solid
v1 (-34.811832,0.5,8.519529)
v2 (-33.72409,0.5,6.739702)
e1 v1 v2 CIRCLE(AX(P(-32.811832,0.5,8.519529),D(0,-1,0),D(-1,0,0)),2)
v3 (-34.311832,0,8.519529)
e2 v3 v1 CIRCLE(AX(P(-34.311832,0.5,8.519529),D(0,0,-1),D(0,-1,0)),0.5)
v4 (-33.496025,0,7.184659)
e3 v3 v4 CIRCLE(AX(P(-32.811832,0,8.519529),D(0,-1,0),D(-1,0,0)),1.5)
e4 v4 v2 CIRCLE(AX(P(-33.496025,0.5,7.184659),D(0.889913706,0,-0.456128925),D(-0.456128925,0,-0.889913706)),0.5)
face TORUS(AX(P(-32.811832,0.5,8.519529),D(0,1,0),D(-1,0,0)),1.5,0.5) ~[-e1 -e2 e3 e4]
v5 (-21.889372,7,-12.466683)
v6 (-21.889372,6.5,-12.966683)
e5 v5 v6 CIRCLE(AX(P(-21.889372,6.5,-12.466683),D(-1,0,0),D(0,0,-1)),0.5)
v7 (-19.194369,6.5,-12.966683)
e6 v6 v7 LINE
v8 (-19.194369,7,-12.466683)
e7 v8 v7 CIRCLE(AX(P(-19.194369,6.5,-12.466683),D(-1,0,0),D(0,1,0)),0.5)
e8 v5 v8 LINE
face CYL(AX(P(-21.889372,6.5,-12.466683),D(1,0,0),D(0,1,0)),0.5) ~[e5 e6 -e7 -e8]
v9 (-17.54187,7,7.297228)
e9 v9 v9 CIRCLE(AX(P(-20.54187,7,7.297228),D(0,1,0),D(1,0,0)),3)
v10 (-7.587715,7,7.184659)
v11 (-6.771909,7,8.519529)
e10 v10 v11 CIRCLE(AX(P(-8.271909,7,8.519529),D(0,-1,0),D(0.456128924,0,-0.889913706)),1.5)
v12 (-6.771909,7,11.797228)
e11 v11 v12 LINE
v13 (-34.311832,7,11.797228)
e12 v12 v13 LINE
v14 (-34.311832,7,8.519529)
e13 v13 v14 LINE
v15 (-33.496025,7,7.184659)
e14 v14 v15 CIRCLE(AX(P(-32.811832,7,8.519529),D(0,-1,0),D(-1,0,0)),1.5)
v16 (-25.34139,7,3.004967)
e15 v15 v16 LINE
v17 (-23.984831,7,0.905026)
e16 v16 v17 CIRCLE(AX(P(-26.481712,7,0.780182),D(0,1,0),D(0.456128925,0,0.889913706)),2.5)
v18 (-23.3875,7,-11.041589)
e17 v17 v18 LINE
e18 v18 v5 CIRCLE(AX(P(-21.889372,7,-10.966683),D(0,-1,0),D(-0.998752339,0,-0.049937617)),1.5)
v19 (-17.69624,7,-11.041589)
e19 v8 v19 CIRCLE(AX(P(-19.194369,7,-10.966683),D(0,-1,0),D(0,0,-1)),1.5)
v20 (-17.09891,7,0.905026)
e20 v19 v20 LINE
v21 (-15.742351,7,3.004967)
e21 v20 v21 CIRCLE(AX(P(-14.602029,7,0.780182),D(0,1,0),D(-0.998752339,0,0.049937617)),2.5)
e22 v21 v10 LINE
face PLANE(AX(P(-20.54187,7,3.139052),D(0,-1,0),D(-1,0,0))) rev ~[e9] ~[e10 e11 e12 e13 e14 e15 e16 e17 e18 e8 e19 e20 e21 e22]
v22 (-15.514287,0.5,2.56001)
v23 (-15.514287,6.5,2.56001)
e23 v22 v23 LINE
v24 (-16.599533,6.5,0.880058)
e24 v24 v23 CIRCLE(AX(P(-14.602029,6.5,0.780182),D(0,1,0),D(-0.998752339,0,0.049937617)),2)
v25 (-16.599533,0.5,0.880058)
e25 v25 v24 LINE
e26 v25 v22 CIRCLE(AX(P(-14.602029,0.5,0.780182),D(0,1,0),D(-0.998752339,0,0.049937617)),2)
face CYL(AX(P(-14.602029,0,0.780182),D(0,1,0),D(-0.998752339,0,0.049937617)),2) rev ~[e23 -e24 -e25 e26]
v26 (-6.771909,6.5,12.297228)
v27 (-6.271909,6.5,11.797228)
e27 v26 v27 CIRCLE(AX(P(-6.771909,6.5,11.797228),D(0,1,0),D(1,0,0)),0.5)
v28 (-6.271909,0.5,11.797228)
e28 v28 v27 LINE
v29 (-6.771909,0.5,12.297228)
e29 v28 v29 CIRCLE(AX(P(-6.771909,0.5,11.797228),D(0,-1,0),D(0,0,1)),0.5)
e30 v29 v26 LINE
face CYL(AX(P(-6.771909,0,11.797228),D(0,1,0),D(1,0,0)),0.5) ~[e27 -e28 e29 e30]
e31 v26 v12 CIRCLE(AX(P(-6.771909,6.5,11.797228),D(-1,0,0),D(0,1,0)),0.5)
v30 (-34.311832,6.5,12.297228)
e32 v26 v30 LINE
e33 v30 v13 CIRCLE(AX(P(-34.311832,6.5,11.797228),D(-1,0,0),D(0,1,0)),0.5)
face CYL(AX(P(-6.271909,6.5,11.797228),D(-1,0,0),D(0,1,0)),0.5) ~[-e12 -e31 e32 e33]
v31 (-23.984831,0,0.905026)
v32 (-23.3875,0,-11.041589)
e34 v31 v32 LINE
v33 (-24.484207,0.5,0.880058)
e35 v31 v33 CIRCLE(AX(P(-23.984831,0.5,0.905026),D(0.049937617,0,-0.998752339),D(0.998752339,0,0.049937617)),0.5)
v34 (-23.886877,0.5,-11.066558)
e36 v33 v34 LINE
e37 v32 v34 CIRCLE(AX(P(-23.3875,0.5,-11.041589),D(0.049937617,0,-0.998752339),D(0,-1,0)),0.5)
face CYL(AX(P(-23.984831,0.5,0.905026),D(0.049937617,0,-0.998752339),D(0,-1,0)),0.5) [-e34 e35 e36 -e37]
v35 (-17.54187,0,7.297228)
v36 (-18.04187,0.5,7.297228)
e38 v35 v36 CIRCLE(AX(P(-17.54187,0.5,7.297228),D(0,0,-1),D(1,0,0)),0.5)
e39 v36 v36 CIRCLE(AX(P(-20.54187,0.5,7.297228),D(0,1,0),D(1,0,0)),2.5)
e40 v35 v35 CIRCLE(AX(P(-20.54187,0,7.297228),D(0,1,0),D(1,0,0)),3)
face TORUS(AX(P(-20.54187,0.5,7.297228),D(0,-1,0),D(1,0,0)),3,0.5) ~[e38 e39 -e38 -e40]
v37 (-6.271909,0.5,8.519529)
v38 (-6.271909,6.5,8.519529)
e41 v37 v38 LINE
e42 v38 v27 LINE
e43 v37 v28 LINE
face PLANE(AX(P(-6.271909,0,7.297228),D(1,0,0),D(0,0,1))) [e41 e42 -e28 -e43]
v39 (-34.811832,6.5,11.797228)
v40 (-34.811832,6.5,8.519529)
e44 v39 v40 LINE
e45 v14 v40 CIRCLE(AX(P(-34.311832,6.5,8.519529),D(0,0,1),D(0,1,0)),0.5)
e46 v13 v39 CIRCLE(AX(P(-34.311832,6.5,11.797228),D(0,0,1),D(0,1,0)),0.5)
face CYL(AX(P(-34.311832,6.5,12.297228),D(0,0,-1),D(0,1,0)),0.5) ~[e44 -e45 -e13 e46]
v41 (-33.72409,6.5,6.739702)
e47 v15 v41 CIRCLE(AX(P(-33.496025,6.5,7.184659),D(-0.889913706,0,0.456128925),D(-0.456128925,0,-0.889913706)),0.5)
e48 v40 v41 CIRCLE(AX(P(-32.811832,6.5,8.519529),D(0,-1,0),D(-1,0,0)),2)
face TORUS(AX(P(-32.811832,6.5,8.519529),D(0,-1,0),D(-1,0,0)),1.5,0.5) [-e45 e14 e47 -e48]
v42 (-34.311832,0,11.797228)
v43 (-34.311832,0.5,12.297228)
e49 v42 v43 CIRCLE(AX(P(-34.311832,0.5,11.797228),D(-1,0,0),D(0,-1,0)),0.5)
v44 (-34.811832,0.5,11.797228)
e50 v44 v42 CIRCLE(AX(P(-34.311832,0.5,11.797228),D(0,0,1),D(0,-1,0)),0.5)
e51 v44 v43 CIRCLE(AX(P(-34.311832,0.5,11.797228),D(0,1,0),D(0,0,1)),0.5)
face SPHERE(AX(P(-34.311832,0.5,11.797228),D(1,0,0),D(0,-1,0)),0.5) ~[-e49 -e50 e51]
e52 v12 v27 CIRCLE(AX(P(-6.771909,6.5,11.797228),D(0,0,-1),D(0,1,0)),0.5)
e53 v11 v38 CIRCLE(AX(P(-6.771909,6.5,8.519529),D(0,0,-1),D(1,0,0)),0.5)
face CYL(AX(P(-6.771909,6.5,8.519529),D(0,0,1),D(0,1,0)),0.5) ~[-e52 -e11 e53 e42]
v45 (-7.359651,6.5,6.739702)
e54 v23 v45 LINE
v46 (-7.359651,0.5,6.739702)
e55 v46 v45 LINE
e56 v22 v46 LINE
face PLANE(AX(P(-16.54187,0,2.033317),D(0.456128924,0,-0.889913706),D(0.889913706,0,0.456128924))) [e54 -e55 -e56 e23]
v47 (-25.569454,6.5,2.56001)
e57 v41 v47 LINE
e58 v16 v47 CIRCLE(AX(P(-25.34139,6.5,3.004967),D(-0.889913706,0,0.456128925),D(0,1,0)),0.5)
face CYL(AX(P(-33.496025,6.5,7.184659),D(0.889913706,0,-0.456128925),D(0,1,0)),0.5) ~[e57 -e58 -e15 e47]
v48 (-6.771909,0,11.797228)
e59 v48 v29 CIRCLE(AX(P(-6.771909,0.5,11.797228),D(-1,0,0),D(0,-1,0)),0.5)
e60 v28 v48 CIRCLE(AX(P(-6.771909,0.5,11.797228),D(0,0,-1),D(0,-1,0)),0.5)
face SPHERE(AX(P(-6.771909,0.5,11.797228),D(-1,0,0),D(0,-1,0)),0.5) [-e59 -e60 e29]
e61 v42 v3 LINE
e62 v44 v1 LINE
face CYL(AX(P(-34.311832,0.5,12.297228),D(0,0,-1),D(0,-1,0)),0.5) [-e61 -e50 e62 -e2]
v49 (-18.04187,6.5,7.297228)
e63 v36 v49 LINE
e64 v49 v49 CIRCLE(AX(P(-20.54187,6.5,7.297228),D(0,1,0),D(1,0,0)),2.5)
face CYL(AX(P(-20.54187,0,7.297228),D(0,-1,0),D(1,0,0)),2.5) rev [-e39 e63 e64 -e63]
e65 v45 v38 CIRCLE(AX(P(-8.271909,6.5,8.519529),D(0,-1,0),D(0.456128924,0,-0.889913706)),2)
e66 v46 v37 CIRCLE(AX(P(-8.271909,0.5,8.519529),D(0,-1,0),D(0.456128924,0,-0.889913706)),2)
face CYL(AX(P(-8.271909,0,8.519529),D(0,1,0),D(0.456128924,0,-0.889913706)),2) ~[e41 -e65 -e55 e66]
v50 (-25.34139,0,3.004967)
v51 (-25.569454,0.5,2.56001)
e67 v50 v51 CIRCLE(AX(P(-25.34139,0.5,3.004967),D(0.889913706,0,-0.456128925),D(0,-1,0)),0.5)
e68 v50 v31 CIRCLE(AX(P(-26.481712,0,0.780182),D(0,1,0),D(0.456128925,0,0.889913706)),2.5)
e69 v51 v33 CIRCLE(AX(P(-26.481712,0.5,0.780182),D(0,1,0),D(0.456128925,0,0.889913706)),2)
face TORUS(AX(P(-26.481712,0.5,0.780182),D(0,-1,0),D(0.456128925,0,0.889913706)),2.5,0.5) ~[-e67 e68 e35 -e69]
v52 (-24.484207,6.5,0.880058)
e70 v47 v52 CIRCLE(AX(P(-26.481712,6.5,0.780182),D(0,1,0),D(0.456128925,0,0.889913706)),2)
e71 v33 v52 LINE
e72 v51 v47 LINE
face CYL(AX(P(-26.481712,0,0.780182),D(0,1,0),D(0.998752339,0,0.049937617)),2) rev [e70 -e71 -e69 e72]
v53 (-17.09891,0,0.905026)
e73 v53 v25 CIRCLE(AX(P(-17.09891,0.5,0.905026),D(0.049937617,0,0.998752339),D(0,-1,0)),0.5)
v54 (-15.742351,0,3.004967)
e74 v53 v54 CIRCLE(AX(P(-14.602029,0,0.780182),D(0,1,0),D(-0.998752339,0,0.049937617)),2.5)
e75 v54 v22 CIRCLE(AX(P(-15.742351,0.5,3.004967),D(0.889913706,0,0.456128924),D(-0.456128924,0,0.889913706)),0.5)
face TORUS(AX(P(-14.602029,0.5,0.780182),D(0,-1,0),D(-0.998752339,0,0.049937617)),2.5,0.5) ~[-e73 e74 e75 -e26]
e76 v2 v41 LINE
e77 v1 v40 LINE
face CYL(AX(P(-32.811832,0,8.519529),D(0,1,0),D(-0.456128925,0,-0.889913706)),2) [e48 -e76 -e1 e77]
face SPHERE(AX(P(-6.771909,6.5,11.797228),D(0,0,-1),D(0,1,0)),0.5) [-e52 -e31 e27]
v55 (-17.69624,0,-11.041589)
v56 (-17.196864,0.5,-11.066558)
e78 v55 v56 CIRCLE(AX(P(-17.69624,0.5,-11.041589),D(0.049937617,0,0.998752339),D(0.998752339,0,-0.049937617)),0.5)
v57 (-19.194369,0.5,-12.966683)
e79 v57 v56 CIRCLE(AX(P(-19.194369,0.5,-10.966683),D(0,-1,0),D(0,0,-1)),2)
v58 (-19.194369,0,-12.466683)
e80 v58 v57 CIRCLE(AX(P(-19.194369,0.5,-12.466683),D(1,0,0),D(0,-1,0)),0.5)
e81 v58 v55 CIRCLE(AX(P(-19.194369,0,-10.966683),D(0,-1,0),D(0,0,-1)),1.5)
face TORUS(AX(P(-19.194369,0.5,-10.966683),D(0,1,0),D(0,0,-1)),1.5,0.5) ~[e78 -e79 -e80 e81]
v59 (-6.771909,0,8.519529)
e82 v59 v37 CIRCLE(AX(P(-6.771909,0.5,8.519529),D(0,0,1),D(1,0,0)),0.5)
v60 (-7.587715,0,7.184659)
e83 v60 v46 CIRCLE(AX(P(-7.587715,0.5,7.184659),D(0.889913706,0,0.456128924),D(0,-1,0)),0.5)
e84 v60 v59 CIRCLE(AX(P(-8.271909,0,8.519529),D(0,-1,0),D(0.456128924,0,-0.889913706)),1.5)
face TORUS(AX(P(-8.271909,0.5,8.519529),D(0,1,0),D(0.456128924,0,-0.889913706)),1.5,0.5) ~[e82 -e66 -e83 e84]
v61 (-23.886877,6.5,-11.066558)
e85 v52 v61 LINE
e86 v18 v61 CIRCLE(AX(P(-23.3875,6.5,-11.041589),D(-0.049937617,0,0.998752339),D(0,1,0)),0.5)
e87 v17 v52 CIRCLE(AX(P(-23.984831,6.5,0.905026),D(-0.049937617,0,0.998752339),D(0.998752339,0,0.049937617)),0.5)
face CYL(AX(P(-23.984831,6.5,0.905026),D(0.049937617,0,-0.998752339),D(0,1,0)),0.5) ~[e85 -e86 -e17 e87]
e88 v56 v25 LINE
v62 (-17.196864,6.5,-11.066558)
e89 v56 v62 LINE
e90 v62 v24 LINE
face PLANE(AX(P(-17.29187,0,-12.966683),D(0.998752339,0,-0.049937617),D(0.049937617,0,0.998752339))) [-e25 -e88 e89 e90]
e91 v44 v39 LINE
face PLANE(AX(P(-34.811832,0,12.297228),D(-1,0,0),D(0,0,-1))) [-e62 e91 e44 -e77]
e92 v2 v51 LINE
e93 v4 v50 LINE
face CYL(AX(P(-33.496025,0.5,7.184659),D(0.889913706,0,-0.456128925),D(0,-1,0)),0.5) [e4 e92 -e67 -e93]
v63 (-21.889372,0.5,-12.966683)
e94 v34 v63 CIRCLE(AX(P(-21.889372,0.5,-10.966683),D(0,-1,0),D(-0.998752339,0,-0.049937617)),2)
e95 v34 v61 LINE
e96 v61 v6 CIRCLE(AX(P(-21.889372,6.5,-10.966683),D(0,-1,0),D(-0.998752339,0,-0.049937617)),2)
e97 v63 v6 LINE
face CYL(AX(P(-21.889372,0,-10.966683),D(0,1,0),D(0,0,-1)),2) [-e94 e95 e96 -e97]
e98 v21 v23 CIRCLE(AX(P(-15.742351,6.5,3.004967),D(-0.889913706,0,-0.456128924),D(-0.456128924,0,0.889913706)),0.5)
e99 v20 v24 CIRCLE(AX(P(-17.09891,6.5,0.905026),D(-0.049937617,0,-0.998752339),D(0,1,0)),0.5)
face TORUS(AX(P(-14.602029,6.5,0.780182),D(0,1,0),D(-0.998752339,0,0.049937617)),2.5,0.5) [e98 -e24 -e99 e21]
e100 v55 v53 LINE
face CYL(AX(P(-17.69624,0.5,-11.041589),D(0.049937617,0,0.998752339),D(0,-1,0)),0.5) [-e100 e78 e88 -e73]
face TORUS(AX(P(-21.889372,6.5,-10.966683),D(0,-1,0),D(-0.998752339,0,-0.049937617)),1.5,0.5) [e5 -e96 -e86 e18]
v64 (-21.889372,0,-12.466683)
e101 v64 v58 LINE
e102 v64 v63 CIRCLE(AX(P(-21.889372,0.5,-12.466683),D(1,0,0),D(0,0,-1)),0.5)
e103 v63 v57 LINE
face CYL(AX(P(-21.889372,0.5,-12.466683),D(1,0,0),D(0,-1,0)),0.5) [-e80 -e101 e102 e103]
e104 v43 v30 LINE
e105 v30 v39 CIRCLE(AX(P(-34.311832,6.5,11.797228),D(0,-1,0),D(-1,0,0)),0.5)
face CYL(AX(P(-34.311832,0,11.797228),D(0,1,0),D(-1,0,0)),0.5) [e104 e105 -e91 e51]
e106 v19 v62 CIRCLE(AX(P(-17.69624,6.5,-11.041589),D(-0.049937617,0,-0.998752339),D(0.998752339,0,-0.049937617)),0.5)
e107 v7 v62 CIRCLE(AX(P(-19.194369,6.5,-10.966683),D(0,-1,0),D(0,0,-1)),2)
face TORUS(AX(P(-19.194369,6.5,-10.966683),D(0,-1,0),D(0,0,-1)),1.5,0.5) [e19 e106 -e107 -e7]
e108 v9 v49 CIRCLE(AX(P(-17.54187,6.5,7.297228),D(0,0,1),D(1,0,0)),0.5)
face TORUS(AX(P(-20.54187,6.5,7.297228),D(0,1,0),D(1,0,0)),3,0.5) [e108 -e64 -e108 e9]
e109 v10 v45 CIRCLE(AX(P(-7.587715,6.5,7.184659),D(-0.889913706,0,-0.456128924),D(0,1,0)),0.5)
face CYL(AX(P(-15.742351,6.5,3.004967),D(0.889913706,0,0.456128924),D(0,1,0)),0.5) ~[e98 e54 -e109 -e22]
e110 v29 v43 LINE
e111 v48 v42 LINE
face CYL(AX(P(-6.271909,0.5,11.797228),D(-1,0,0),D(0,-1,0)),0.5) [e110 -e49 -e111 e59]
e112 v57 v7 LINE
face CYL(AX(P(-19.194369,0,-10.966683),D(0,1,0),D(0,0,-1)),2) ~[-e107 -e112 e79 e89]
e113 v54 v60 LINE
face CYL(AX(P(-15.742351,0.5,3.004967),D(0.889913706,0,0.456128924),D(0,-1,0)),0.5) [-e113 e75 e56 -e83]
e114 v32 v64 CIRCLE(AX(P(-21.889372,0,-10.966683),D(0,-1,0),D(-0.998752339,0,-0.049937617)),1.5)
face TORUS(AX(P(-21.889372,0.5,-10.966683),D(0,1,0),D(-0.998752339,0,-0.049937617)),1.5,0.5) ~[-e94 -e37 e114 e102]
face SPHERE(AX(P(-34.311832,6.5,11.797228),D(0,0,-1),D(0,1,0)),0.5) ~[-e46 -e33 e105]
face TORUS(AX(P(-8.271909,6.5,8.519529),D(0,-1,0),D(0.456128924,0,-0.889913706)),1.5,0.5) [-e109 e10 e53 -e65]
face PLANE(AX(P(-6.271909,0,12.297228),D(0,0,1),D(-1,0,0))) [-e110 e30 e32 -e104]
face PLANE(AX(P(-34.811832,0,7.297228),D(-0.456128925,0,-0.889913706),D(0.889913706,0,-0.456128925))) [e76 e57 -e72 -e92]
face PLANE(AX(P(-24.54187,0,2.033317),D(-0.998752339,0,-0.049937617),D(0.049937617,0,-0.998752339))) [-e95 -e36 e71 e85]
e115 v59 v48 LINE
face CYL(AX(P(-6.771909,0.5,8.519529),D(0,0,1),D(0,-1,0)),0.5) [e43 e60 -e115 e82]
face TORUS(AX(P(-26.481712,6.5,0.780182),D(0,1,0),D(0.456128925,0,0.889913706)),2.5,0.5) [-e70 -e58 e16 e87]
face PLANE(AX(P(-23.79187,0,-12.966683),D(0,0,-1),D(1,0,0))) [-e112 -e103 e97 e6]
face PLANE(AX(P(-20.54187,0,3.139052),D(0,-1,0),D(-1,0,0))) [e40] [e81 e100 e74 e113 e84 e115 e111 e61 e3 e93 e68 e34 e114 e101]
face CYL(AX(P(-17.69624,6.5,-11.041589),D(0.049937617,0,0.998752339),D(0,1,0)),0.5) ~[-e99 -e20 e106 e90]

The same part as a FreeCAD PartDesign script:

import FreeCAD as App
import Part
import Sketcher


def edges_at(feature, points):
    """Names of the edges that pass closest to the given points."""
    edges = feature.Shape.Edges
    near = lambda p: min(range(len(edges)), key=lambda i: edges[i].distToShape(Part.Vertex(*p))[0])
    return sorted({f"Edge{near(p) + 1}" for p in points})

doc = App.newDocument("Part")
body = doc.addObject("PartDesign::Body", "Body")

# Sketch on XZ plane
sketch1 = body.newObject("Sketcher::SketchObject", "Sketch")
sketch1.AttachmentSupport = (doc.getObject("XZ_Plane"), [""])
sketch1.MapMode = "FlatFace"
sketch1.addGeometry([
    Part.LineSegment(App.Vector(-17.3, -13, 0), App.Vector(-23.8, -13, 0)),  # 0
    Part.LineSegment(App.Vector(-23.8, -13, 0), App.Vector(-24.5, 2, 0)),  # 1
    Part.LineSegment(App.Vector(-24.5, 2, 0), App.Vector(-34.8, 7.3, 0)),  # 2
    Part.LineSegment(App.Vector(-34.8, 7.3, 0), App.Vector(-34.8, 12.3, 0)),  # 3
    Part.LineSegment(App.Vector(-34.8, 12.3, 0), App.Vector(-6.3, 12.3, 0)),  # 4
    Part.LineSegment(App.Vector(-6.3, 12.3, 0), App.Vector(-6.3, 7.3, 0)),  # 5
    Part.LineSegment(App.Vector(-6.3, 7.3, 0), App.Vector(-16.5, 2, 0)),  # 6
    Part.LineSegment(App.Vector(-16.5, 2, 0), App.Vector(-17.3, -13, 0)),  # 7
    Part.Circle(App.Vector(-20.5, 7.3, 0), App.Vector(0, 0, 1), 2.5),  # 8
], False)
sketch1.addConstraint([
    Sketcher.Constraint("Coincident", 0, 2, 1, 1),
    Sketcher.Constraint("Coincident", 1, 2, 2, 1),
    Sketcher.Constraint("Coincident", 2, 2, 3, 1),
    Sketcher.Constraint("Coincident", 3, 2, 4, 1),
    Sketcher.Constraint("Coincident", 4, 2, 5, 1),
    Sketcher.Constraint("Coincident", 5, 2, 6, 1),
    Sketcher.Constraint("Coincident", 6, 2, 7, 1),
    Sketcher.Constraint("Coincident", 7, 2, 0, 1),
    Sketcher.Constraint("Horizontal", 0),
    Sketcher.Constraint("Vertical", 3),
    Sketcher.Constraint("Horizontal", 4),
    Sketcher.Constraint("Vertical", 5),
    Sketcher.Constraint("Horizontal", 8, 3, 2, 2),
    Sketcher.Constraint("Horizontal", 2, 2, 5, 2),
    Sketcher.Constraint("Horizontal", 1, 2, 6, 2),
    Sketcher.Constraint("Equal", 2, 6),
    Sketcher.Constraint("Equal", 1, 7),
    Sketcher.Constraint("Diameter", 8, 5.0),
    Sketcher.Constraint("DistanceY", 3, 1, 3, 2, 5.0),
    Sketcher.Constraint("DistanceX", 0, 2, 0, 1, 6.5),
    Sketcher.Constraint("DistanceX", 1, 2, 8, 3, 4.0),
    Sketcher.Constraint("DistanceY", 0, 2, 1, 2, 15.0),
    Sketcher.Constraint("DistanceX", 8, 3, 6, 2, 4.0),
    Sketcher.Constraint("Distance", 2, 11.540402),
    Sketcher.Constraint("DistanceX", 4, 1, 4, 2, 28.539923),
    Sketcher.Constraint("DistanceX", 8, 3, -1, 1, 20.54187),
    Sketcher.Constraint("DistanceY", -1, 1, 8, 3, 7.297228),
])
pad1 = body.newObject("PartDesign::Pad", "Pad")
pad1.Profile = sketch1
pad1.Length = 7
pad1.Reversed = True
doc.recompute()

fillet = body.newObject("PartDesign::Fillet", "Fillet")
fillet.Base = (pad1, edges_at(pad1, [
    (-23.792, 3.5, -12.967),
    (-17.292, 3.5, -12.967),
    (-16.542, 3.5, 2.033),
    (-6.272, 3.5, 7.297),
    (-34.812, 3.5, 7.297),
    (-24.542, 3.5, 2.033),
]))
fillet.Radius = 2
doc.recompute()

fillet2 = body.newObject("PartDesign::Fillet", "Fillet001")
fillet2.Base = (fillet, ["Edge1"])
fillet2.UseAllEdges = True
fillet2.Radius = 0.5

doc.recompute()
